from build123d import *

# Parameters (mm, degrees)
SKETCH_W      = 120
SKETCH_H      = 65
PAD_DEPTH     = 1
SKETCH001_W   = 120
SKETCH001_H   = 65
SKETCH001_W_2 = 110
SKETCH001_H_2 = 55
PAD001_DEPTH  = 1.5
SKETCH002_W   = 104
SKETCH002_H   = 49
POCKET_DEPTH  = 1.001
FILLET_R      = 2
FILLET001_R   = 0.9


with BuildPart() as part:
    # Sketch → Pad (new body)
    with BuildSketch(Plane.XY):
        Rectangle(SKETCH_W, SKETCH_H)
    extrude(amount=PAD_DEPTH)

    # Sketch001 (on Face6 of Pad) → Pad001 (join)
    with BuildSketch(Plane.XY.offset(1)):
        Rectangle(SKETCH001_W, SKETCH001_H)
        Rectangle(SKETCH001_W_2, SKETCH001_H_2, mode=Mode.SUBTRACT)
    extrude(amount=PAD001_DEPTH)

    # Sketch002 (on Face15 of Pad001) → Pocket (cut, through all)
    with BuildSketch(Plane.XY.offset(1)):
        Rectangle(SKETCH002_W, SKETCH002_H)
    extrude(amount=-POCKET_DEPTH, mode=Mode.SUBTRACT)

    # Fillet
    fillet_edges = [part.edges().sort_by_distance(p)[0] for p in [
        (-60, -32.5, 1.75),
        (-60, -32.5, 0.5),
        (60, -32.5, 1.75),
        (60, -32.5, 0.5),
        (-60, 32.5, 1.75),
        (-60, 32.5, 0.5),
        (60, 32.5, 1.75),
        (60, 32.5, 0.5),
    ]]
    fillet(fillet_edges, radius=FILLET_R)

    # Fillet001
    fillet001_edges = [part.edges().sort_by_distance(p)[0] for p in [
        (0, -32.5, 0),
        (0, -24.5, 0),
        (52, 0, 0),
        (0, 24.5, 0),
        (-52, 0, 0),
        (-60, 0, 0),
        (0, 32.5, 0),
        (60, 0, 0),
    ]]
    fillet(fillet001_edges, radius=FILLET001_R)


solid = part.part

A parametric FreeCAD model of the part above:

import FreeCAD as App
import Part
import Sketcher
Q = App.Units.Quantity


def edges_at(feature, points):
    """Names of the edges that pass closest to the given points."""
    edges = feature.Shape.Edges
    near = lambda p: min(range(len(edges)), key=lambda i: edges[i].distToShape(Part.Vertex(*p))[0])
    return sorted({f"Edge{near(p) + 1}" for p in points})


def add_polygon(sketch, points):
    """Adds a closed chain of lines whose ends are joined by coincident constraints."""
    first, n = sketch.GeometryCount, len(points)
    for a, b in zip(points, points[1:] + points[:1]):
        sketch.addGeometry(Part.LineSegment(App.Vector(*a, 0), App.Vector(*b, 0)), False)
    for i in range(n):
        sketch.addConstraint(Sketcher.Constraint("Coincident", first + i, 2, first + (i + 1) % n, 1))

doc = App.newDocument("Part")
params = doc.addObject("Spreadsheet::Sheet", "Params")
for row, (alias, value) in enumerate([
    ("sketch1_width", "120 mm"),
    ("sketch1_height", "65 mm"),
    ("pad1_length", "1 mm"),
    ("sketch2_width", "120 mm"),
    ("sketch2_width2", "110 mm"),
    ("sketch2_height", "65 mm"),
    ("sketch2_height2", "55 mm"),
    ("pad2_length", "1.5 mm"),
    ("sketch3_width", "104 mm"),
    ("sketch3_height", "49 mm"),
    ("fillet_radius", "2 mm"),
    ("fillet2_radius", "0.9 mm"),
], start=1):
    params.set(f"A{row}", alias)
    params.set(f"B{row}", "=" + value)
    params.setAlias(f"B{row}", alias)

body = doc.addObject("PartDesign::Body", "Body")

# Sketch on XY plane
sketch1 = doc.addObject("Sketcher::SketchObject", "Sketch")
body.addObject(sketch1)
sketch1.AttachmentSupport = (doc.XY_Plane, [""])
sketch1.MapMode = "FlatFace"
add_polygon(sketch1, [(-60, 32), (-60, -32), (60, -32), (60, 32)])  # lines 0-3
sketch1.addConstraint(Sketcher.Constraint("Vertical", 0))
sketch1.addConstraint(Sketcher.Constraint("Horizontal", 1))
sketch1.addConstraint(Sketcher.Constraint("Vertical", 2))
sketch1.addConstraint(Sketcher.Constraint("Horizontal", 3))
sketch1.addConstraint(Sketcher.Constraint("Symmetric", 0, 2, 2, 2, -1, 1))
sketch1.addConstraint(Sketcher.Constraint("DistanceX", 1, 1, 1, 2, Q("120 mm")))
sketch1.addConstraint(Sketcher.Constraint("DistanceY", 0, 2, 0, 1, Q("65 mm")))
sketch1.setExpression("Constraints[9]", "Params.sketch1_width")
sketch1.setExpression("Constraints[10]", "Params.sketch1_height")
pad1 = doc.addObject("PartDesign::Pad", "Pad")
body.addObject(pad1)
pad1.Profile = sketch1
pad1.setExpression("Length", "Params.pad1_length")

# Sketch on XY plane
sketch2 = doc.addObject("Sketcher::SketchObject", "Sketch001")
body.addObject(sketch2)
sketch2.AttachmentSupport = (doc.XY_Plane, [""])
sketch2.MapMode = "FlatFace"
sketch2.AttachmentOffset = App.Placement(App.Vector(0, 0, 1), App.Rotation())
add_polygon(sketch2, [(-60, 32), (-60, -32), (60, -32), (60, 32)])  # lines 0-3
add_polygon(sketch2, [(55, -28), (-55, -28), (-55, 28), (55, 28)])  # lines 4-7
sketch2.addConstraint(Sketcher.Constraint("Vertical", 0))
sketch2.addConstraint(Sketcher.Constraint("Horizontal", 1))
sketch2.addConstraint(Sketcher.Constraint("Vertical", 2))
sketch2.addConstraint(Sketcher.Constraint("Horizontal", 3))
sketch2.addConstraint(Sketcher.Constraint("Horizontal", 4))
sketch2.addConstraint(Sketcher.Constraint("Vertical", 5))
sketch2.addConstraint(Sketcher.Constraint("Horizontal", 6))
sketch2.addConstraint(Sketcher.Constraint("Vertical", 7))
sketch2.addConstraint(Sketcher.Constraint("Symmetric", 0, 2, 2, 2, -1, 1))
sketch2.addConstraint(Sketcher.Constraint("Symmetric", 4, 2, 6, 2, -1, 1))
sketch2.addConstraint(Sketcher.Constraint("DistanceX", 1, 1, 1, 2, Q("120 mm")))
sketch2.addConstraint(Sketcher.Constraint("DistanceX", 4, 2, 4, 1, Q("110 mm")))
sketch2.addConstraint(Sketcher.Constraint("DistanceY", 0, 2, 0, 1, Q("65 mm")))
sketch2.addConstraint(Sketcher.Constraint("DistanceY", 5, 1, 5, 2, Q("55 mm")))
sketch2.setExpression("Constraints[18]", "Params.sketch2_width")
sketch2.setExpression("Constraints[19]", "Params.sketch2_width2")
sketch2.setExpression("Constraints[20]", "Params.sketch2_height")
sketch2.setExpression("Constraints[21]", "Params.sketch2_height2")
pad2 = doc.addObject("PartDesign::Pad", "Pad001")
body.addObject(pad2)
pad2.Profile = sketch2
pad2.setExpression("Length", "Params.pad2_length")

# Sketch on XY plane
sketch3 = doc.addObject("Sketcher::SketchObject", "Sketch002")
body.addObject(sketch3)
sketch3.AttachmentSupport = (doc.XY_Plane, [""])
sketch3.MapMode = "FlatFace"
sketch3.AttachmentOffset = App.Placement(App.Vector(0, 0, 1), App.Rotation())
add_polygon(sketch3, [(-52, 24), (-52, -24), (52, -24), (52, 24)])  # lines 0-3
sketch3.addConstraint(Sketcher.Constraint("Vertical", 0))
sketch3.addConstraint(Sketcher.Constraint("Horizontal", 1))
sketch3.addConstraint(Sketcher.Constraint("Vertical", 2))
sketch3.addConstraint(Sketcher.Constraint("Horizontal", 3))
sketch3.addConstraint(Sketcher.Constraint("Symmetric", 0, 2, 2, 2, -1, 1))
sketch3.addConstraint(Sketcher.Constraint("DistanceX", 1, 1, 1, 2, Q("104 mm")))
sketch3.addConstraint(Sketcher.Constraint("DistanceY", 0, 2, 0, 1, Q("49 mm")))
sketch3.setExpression("Constraints[9]", "Params.sketch3_width")
sketch3.setExpression("Constraints[10]", "Params.sketch3_height")
pocket1 = doc.addObject("PartDesign::Pocket", "Pocket")
body.addObject(pocket1)
pocket1.Profile = sketch3
pocket1.Type = "ThroughAll"
doc.recompute()

fillet = doc.addObject("PartDesign::Fillet", "Fillet")
body.addObject(fillet)
fillet.Base = (pocket1, edges_at(pocket1, [
    (-60, -32.5, 1.25),
    (-60, -32.5, 1.25),
    (60, -32.5, 1.25),
    (60, -32.5, 1.25),
    (-60, 32.5, 1.25),
    (-60, 32.5, 1.25),
    (60, 32.5, 1.25),
    (60, 32.5, 1.25),
]))
fillet.setExpression("Radius", "Params.fillet_radius")
doc.recompute()

fillet2 = doc.addObject("PartDesign::Fillet", "Fillet001")
body.addObject(fillet2)
fillet2.Base = (fillet, edges_at(fillet, [
    (0, -32.5, 0),
    (0, -24.5, 0),
    (52, 0, 0),
    (0, 24.5, 0),
    (-52, 0, 0),
    (-60, 0, 0),
    (0, 32.5, 0),
    (60, 0, 0),
]))
fillet2.setExpression("Radius", "Params.fillet2_radius")

doc.recompute()
